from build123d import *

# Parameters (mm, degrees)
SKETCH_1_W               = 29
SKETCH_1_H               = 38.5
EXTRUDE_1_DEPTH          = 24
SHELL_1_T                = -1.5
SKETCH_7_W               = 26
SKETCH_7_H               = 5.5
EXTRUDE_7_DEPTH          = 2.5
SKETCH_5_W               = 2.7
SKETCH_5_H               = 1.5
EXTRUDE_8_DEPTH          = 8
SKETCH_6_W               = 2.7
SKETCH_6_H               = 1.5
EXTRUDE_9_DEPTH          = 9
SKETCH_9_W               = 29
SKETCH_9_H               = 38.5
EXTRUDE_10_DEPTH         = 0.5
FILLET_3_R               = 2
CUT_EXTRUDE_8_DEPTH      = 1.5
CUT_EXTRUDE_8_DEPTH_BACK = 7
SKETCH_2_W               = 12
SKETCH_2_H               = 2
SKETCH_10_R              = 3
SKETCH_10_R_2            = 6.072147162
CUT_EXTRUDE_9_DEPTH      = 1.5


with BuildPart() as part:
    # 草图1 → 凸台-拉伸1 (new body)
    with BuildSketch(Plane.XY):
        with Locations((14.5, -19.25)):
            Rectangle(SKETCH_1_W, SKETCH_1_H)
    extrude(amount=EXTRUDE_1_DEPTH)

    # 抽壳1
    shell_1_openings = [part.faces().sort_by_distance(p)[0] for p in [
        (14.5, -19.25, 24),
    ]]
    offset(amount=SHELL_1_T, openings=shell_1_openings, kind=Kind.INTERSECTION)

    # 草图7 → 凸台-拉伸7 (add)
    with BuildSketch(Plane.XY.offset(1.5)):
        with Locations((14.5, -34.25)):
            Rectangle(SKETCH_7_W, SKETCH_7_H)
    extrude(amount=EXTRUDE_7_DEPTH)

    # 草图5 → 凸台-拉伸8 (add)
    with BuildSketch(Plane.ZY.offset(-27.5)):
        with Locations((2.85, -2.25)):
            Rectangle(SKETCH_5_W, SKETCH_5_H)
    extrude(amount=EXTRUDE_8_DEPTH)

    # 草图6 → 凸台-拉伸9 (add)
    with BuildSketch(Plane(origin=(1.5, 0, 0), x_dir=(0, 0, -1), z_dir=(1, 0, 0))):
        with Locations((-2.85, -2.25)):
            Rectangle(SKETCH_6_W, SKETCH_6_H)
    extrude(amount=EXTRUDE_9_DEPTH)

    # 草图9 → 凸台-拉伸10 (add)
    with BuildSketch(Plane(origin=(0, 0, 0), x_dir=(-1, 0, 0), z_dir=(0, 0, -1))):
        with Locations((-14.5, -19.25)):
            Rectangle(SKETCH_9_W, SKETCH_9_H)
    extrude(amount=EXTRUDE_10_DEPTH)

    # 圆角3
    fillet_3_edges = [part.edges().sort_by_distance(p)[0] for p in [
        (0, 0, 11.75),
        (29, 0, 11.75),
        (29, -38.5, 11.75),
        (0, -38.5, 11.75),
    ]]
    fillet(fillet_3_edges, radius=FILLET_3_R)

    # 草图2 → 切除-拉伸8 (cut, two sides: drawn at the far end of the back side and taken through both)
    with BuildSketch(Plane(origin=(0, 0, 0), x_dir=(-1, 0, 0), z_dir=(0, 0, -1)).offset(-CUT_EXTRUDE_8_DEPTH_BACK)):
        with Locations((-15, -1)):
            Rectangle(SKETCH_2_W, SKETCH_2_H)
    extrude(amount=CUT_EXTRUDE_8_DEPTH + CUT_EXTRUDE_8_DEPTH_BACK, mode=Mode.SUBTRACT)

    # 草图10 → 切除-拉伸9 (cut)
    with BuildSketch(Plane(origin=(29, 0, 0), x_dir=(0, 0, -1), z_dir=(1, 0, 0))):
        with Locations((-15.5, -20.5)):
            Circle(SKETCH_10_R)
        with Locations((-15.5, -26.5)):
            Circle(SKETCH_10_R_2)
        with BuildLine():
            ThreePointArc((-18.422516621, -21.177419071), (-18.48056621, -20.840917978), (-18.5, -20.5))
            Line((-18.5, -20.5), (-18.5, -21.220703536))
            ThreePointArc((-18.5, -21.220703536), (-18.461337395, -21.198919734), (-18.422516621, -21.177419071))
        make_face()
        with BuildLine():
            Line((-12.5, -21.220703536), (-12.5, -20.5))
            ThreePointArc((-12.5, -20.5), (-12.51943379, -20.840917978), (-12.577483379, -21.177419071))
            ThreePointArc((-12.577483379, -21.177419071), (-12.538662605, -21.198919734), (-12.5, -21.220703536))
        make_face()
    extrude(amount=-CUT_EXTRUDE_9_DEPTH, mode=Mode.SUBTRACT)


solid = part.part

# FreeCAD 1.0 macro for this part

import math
import FreeCAD as App
import Part
import Sketcher
Q = App.Units.Quantity


def edges_at(feature, points):
    """Names of the edges that pass closest to the given points."""
    edges = feature.Shape.Edges
    near = lambda p: min(range(len(edges)), key=lambda i: edges[i].distToShape(Part.Vertex(*p))[0])
    return sorted({f"Edge{near(p) + 1}" for p in points})


def faces_at(feature, points):
    """Names of the faces that lie closest to the given points."""
    faces = feature.Shape.Faces
    near = lambda p: min(range(len(faces)), key=lambda i: faces[i].distToShape(Part.Vertex(*p))[0])
    return sorted({f"Face{near(p) + 1}" for p in points})


def add_polygon(sketch, points):
    """Adds a closed chain of lines whose ends are joined by coincident constraints."""
    first, n = sketch.GeometryCount, len(points)
    for a, b in zip(points, points[1:] + points[:1]):
        sketch.addGeometry(Part.LineSegment(App.Vector(*a, 0), App.Vector(*b, 0)), False)
    for i in range(n):
        sketch.addConstraint(Sketcher.Constraint("Coincident", first + i, 2, first + (i + 1) % n, 1))

doc = App.newDocument("Part")
body = doc.addObject("PartDesign::Body", "Body")

# Sketch on XY plane
sketch1 = body.newObject("Sketcher::SketchObject", "Sketch")
sketch1.AttachmentSupport = (doc.getObject("XY_Plane"), [""])
sketch1.MapMode = "FlatFace"
add_polygon(sketch1, [(0, 0), (0, -38.5), (29, -38.5), (29, 0)])  # lines 0-3
sketch1.addConstraint([
    Sketcher.Constraint("Vertical", 0),
    Sketcher.Constraint("Horizontal", 1),
    Sketcher.Constraint("Vertical", 2),
    Sketcher.Constraint("Horizontal", 3),
    Sketcher.Constraint("Coincident", 3, 2, -1, 1),
    Sketcher.Constraint("DistanceX", 1, 1, 1, 2, Q("29 mm")),
    Sketcher.Constraint("DistanceY", 0, 2, 0, 1, Q("38.5 mm")),
])
pad1 = body.newObject("PartDesign::Pad", "Pad")
pad1.Profile = sketch1
pad1.Length = 24
doc.recompute()

thickness = body.newObject("PartDesign::Thickness", "Thickness")
thickness.Base = (pad1, faces_at(pad1, [(14.5, -19.25, 24)]))
thickness.Value = 1.5
thickness.Reversed = True
thickness.Join = "Intersection"

# Sketch on XY plane
sketch2 = body.newObject("Sketcher::SketchObject", "Sketch001")
sketch2.AttachmentSupport = (doc.getObject("XY_Plane"), [""])
sketch2.MapMode = "FlatFace"
sketch2.AttachmentOffset = App.Placement(App.Vector(0, 0, 1.5), App.Rotation())
add_polygon(sketch2, [(1.5, -31.5), (1.5, -37), (27.5, -37), (27.5, -31.5)])  # lines 0-3
sketch2.addConstraint([
    Sketcher.Constraint("Vertical", 0),
    Sketcher.Constraint("Horizontal", 1),
    Sketcher.Constraint("Vertical", 2),
    Sketcher.Constraint("Horizontal", 3),
    Sketcher.Constraint("DistanceX", 1, 1, 1, 2, Q("26 mm")),
    Sketcher.Constraint("DistanceY", 0, 2, 0, 1, Q("5.5 mm")),
    Sketcher.Constraint("DistanceY", 0, 2, -1, 1, Q("37 mm")),
    Sketcher.Constraint("DistanceX", -1, 1, 0, 2, Q("1.5 mm")),
])
pad2 = body.newObject("PartDesign::Pad", "Pad001")
pad2.Profile = sketch2
pad2.Length = 2.5

# Sketch on YZ plane
sketch3 = body.newObject("Sketcher::SketchObject", "Sketch002")
sketch3.AttachmentSupport = (doc.getObject("YZ_Plane"), [""])
sketch3.MapMode = "FlatFace"
sketch3.AttachmentOffset = App.Placement(App.Vector(0, 0, 27.5), App.Rotation())
add_polygon(sketch3, [(-1.5, 1.5), (-3, 1.5), (-3, 4.2), (-1.5, 4.2)])  # lines 0-3
sketch3.addConstraint([
    Sketcher.Constraint("Horizontal", 0),
    Sketcher.Constraint("Vertical", 1),
    Sketcher.Constraint("Horizontal", 2),
    Sketcher.Constraint("Vertical", 3),
    Sketcher.Constraint("DistanceX", 0, 2, 0, 1, Q("1.5 mm")),
    Sketcher.Constraint("DistanceY", 1, 1, 1, 2, Q("2.7 mm")),
    Sketcher.Constraint("DistanceX", 0, 2, -1, 1, Q("3 mm")),
    Sketcher.Constraint("DistanceY", -1, 1, 0, 2, Q("1.5 mm")),
])
pad3 = body.newObject("PartDesign::Pad", "Pad002")
pad3.Profile = sketch3
pad3.Length = 8
pad3.Reversed = True

# Sketch on YZ plane
sketch4 = body.newObject("Sketcher::SketchObject", "Sketch003")
sketch4.AttachmentSupport = (doc.getObject("YZ_Plane"), [""])
sketch4.MapMode = "FlatFace"
sketch4.AttachmentOffset = App.Placement(App.Vector(0, 0, 1.5), App.Rotation())
add_polygon(sketch4, [(-1.5, 4.2), (-3, 4.2), (-3, 1.5), (-1.5, 1.5)])  # lines 0-3
sketch4.addConstraint([
    Sketcher.Constraint("Horizontal", 0),
    Sketcher.Constraint("Vertical", 1),
    Sketcher.Constraint("Horizontal", 2),
    Sketcher.Constraint("Vertical", 3),
    Sketcher.Constraint("DistanceX", 0, 2, 0, 1, Q("1.5 mm")),
    Sketcher.Constraint("DistanceY", 1, 2, 1, 1, Q("2.7 mm")),
    Sketcher.Constraint("DistanceX", 0, 2, -1, 1, Q("3 mm")),
    Sketcher.Constraint("DistanceY", -1, 1, 0, 2, Q("4.2 mm")),
])
pad4 = body.newObject("PartDesign::Pad", "Pad003")
pad4.Profile = sketch4
pad4.Length = 9

# Sketch on XY plane
sketch5 = body.newObject("Sketcher::SketchObject", "Sketch004")
sketch5.AttachmentSupport = (doc.getObject("XY_Plane"), [""])
sketch5.MapMode = "FlatFace"
add_polygon(sketch5, [(29, 0), (29, -38.5), (0, -38.5), (0, 0)])  # lines 0-3
sketch5.addConstraint([
    Sketcher.Constraint("Vertical", 0),
    Sketcher.Constraint("Horizontal", 1),
    Sketcher.Constraint("Vertical", 2),
    Sketcher.Constraint("Horizontal", 3),
    Sketcher.Constraint("Coincident", 2, 2, -1, 1),
    Sketcher.Constraint("DistanceX", 1, 2, 1, 1, Q("29 mm")),
    Sketcher.Constraint("DistanceY", 0, 2, 0, 1, Q("38.5 mm")),
])
pad5 = body.newObject("PartDesign::Pad", "Pad004")
pad5.Profile = sketch5
pad5.Length = 0.5
pad5.Reversed = True
doc.recompute()

fillet = body.newObject("PartDesign::Fillet", "Fillet")
fillet.Base = (pad5, edges_at(pad5, [
    (0, 0, 11.75),
    (29, 0, 11.75),
    (29, -38.5, 11.75),
    (0, -38.5, 11.75),
]))
fillet.Radius = 2

# Sketch on XY plane
sketch6 = body.newObject("Sketcher::SketchObject", "Sketch005")
sketch6.AttachmentSupport = (doc.getObject("XY_Plane"), [""])
sketch6.MapMode = "FlatFace"
add_polygon(sketch6, [(21, 0), (21, -2), (9, -2), (9, 0)])  # lines 0-3
sketch6.addConstraint([
    Sketcher.Constraint("Vertical", 0),
    Sketcher.Constraint("Horizontal", 1),
    Sketcher.Constraint("Vertical", 2),
    Sketcher.Constraint("Horizontal", 3),
    Sketcher.Constraint("PointOnObject", 2, 2, -1),
    Sketcher.Constraint("DistanceX", 1, 2, 1, 1, Q("12 mm")),
    Sketcher.Constraint("DistanceY", 0, 2, 0, 1, Q("2 mm")),
    Sketcher.Constraint("DistanceX", -1, 1, 0, 2, Q("21 mm")),
])
pocket1 = body.newObject("PartDesign::Pocket", "Pocket")
pocket1.Profile = sketch6
pocket1.Type = "TwoLengths"
pocket1.Length = 1.5
pocket1.Length2 = 7

# Sketch on YZ plane
sketch7 = body.newObject("Sketcher::SketchObject", "Sketch006")
sketch7.AttachmentSupport = (doc.getObject("YZ_Plane"), [""])
sketch7.MapMode = "FlatFace"
sketch7.AttachmentOffset = App.Placement(App.Vector(0, 0, 29), App.Rotation())
sketch7.addGeometry([
    Part.ArcOfCircle(Part.Circle(App.Vector(-26.5, 15.5, 0), App.Vector(0, 0, 1), 6.072147), math.radians(29.60773), math.radians(330.39227)),
    Part.LineSegment(App.Vector(-21.220704, 12.5, 0), App.Vector(-20.5, 12.5, 0)),
    Part.ArcOfCircle(Part.Circle(App.Vector(-20.5, 15.5, 0), App.Vector(0, 0, 1), 3), math.radians(-90), math.radians(90)),
    Part.LineSegment(App.Vector(-20.5, 18.5, 0), App.Vector(-21.220704, 18.5, 0)),
], False)
sketch7.addConstraint([
    Sketcher.Constraint("Coincident", 0, 2, 1, 1),
    Sketcher.Constraint("Tangent", 1, 2, 2, 1),
    Sketcher.Constraint("Tangent", 2, 2, 3, 1),
    Sketcher.Constraint("Coincident", 3, 2, 0, 1),
    Sketcher.Constraint("Horizontal", 1),
    Sketcher.Constraint("Horizontal", 3),
    Sketcher.Constraint("Horizontal", 0, 3, 2, 3),
    Sketcher.Constraint("Radius", 2, Q("3 mm")),
    Sketcher.Constraint("DistanceX", 0, 3, 2, 3, Q("6 mm")),
    Sketcher.Constraint("DistanceX", 0, 3, -1, 1, Q("26.5 mm")),
    Sketcher.Constraint("DistanceY", -1, 1, 0, 3, Q("15.5 mm")),
    Sketcher.Constraint("Radius", 0, Q("6.072147 mm")),
])
pocket2 = body.newObject("PartDesign::Pocket", "Pocket001")
pocket2.Profile = sketch7
pocket2.Length = 1.5

doc.recompute()
